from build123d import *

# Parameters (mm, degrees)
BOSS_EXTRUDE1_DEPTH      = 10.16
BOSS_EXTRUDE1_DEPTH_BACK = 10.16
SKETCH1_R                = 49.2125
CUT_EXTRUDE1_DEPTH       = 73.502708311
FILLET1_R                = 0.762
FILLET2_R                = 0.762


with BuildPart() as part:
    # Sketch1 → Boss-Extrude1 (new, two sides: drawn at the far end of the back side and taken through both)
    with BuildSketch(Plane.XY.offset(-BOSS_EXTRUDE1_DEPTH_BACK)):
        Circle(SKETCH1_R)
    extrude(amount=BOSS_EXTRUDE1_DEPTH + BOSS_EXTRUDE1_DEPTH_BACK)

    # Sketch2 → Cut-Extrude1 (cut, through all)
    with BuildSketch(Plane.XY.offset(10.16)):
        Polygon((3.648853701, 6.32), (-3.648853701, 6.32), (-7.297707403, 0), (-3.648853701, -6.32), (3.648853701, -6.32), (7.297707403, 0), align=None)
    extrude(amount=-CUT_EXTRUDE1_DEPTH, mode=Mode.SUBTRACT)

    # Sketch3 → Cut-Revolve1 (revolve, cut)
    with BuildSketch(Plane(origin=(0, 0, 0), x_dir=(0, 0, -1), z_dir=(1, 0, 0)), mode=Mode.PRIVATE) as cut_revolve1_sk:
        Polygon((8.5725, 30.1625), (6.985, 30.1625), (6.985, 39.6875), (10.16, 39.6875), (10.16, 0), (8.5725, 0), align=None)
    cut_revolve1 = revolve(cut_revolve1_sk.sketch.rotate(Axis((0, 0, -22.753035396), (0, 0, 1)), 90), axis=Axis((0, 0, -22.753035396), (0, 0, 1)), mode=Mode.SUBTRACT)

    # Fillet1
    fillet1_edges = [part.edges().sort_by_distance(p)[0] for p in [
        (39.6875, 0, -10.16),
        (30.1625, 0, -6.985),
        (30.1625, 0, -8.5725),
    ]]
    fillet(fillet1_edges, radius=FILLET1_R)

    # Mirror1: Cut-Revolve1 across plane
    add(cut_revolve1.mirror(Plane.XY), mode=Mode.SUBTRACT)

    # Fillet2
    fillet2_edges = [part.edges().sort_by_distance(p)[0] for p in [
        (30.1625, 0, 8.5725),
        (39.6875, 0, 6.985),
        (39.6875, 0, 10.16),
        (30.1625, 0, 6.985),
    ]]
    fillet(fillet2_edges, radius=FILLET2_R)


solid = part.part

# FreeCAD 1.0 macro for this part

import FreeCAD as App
import Part
import Sketcher

V = App.Vector
Q = App.Units.Quantity


def edges_at(feature, points):
    """Names of the edges that pass closest to the given points."""
    edges = feature.Shape.Edges
    near = lambda p: min(range(len(edges)), key=lambda i: edges[i].distToShape(Part.Vertex(*p))[0])
    return sorted({f"Edge{near(p) + 1}" for p in points})

doc = App.newDocument("Part")
params = doc.addObject("Spreadsheet::Sheet", "Params")
for row, (alias, value) in enumerate([
    ("sketch1_diameter", "3.875 in"),
    ("pad1_length", "0.4 in"),
    ("pad1_length2", "0.4 in"),
    ("sketch3_width", "1.1875 in"),
    ("sketch3_width2", "1.5625 in"),
    ("sketch3_height", "0.0625 in"),
    ("groove_angle", "360 deg"),
    ("fillet_radius", "0.03 in"),
    ("fillet2_radius", "0.03 in"),
], start=1):
    params.set(f"A{row}", alias)
    params.set(f"B{row}", "=" + value)
    params.setAlias(f"B{row}", alias)

body = doc.addObject("PartDesign::Body", "Body")

sketch1 = body.newObject("Sketcher::SketchObject", "Sketch")
sketch1.AttachmentSupport = (doc.getObject("XY_Plane"), [""])
sketch1.MapMode = "FlatFace"
sketch1.addGeometry(Part.Circle(V(0, 0, 0), V(0, 0, 1), 49), False)
sketch1.addConstraint([
    Sketcher.Constraint("Coincident", 0, 3, -1, 1),
    Sketcher.Constraint("Diameter", 0, Q("3.875 in")),
])
sketch1.setExpression("Constraints[1]", "Params.sketch1_diameter")
pad1 = body.newObject("PartDesign::Pad", "Pad")
pad1.Profile = sketch1
pad1.Type = "TwoLengths"
pad1.setExpression("Length", "Params.pad1_length")
pad1.setExpression("Length2", "Params.pad1_length2")

sketch2 = body.newObject("Sketcher::SketchObject", "Sketch001")
sketch2.AttachmentSupport = (doc.getObject("XY_Plane"), [""])
sketch2.MapMode = "FlatFace"
sketch2.AttachmentOffset = App.Placement(V(0, 0, 0.4 * 25.4), App.Rotation())
sketch2.addGeometry([
    Part.LineSegment(V(4, 6, 0), V(-4, 6, 0)),
    Part.LineSegment(V(-4, 6, 0), V(-7, 0, 0)),
    Part.LineSegment(V(-7, 0, 0), V(-4, -6, 0)),
    Part.LineSegment(V(-4, -6, 0), V(4, -6, 0)),
    Part.LineSegment(V(4, -6, 0), V(7, 0, 0)),
    Part.LineSegment(V(7, 0, 0), V(4, 6, 0)),
], False)
sketch2.addConstraint([
    Sketcher.Constraint("Coincident", 0, 2, 1, 1),
    Sketcher.Constraint("Coincident", 1, 2, 2, 1),
    Sketcher.Constraint("Coincident", 2, 2, 3, 1),
    Sketcher.Constraint("Coincident", 3, 2, 4, 1),
    Sketcher.Constraint("Coincident", 4, 2, 5, 1),
    Sketcher.Constraint("Coincident", 5, 2, 0, 1),
    Sketcher.Constraint("Horizontal", 0),
    Sketcher.Constraint("Horizontal", 3),
    Sketcher.Constraint("Symmetric", 0, 2, 3, 2, -1, 1),
    Sketcher.Constraint("Symmetric", 1, 2, 4, 2, -1, 1),
    Sketcher.Constraint("PointOnObject", 1, 2, -1),
    Sketcher.Constraint("Parallel", 2, 5),
    Sketcher.Constraint("Vertical", 0, 2, 2, 2),
    Sketcher.Constraint("Angle", 1, Q("-120 deg")),
    Sketcher.Constraint("DistanceY", -1, 1, 0, 2, Q("6.32 mm")),
    Sketcher.Constraint("DistanceX", 0, 2, 0, 1, Q("7.297707 mm")),
])
pocket1 = body.newObject("PartDesign::Pocket", "Pocket")
pocket1.Profile = sketch2
pocket1.Type = "ThroughAll"

sketch3 = body.newObject("Sketcher::SketchObject", "Sketch002")
sketch3.AttachmentSupport = (doc.getObject("YZ_Plane"), [""])
sketch3.MapMode = "FlatFace"
sketch3.addGeometry([
    Part.LineSegment(V(30.2, -7, 0), V(30.2, -8.6, 0)),
    Part.LineSegment(V(30.2, -8.6, 0), V(0, -8.6, 0)),
    Part.LineSegment(V(0, -8.6, 0), V(0, -10.2, 0)),
    Part.LineSegment(V(0, -10.2, 0), V(39.7, -10.2, 0)),
    Part.LineSegment(V(39.7, -10.2, 0), V(39.7, -7, 0)),
    Part.LineSegment(V(39.7, -7, 0), V(30.2, -7, 0)),
], False)
sketch3.addConstraint([
    Sketcher.Constraint("Coincident", 0, 2, 1, 1),
    Sketcher.Constraint("Coincident", 1, 2, 2, 1),
    Sketcher.Constraint("Coincident", 2, 2, 3, 1),
    Sketcher.Constraint("Coincident", 3, 2, 4, 1),
    Sketcher.Constraint("Coincident", 4, 2, 5, 1),
    Sketcher.Constraint("Coincident", 5, 2, 0, 1),
    Sketcher.Constraint("Vertical", 0),
    Sketcher.Constraint("Horizontal", 1),
    Sketcher.Constraint("Vertical", 2),
    Sketcher.Constraint("Horizontal", 3),
    Sketcher.Constraint("Vertical", 4),
    Sketcher.Constraint("Horizontal", 5),
    Sketcher.Constraint("PointOnObject", 1, 2, -2),
    Sketcher.Constraint("Equal", 0, 2),
    Sketcher.Constraint("DistanceY", 2, 2, -1, 1, Q("0.4 in")),
    Sketcher.Constraint("DistanceX", 1, 2, 1, 1, Q("1.1875 in")),
    Sketcher.Constraint("DistanceX", 3, 1, 3, 2, Q("1.5625 in")),
    Sketcher.Constraint("DistanceY", 0, 2, 0, 1, Q("0.0625 in")),
])
sketch3.setExpression("Constraints[15]", "Params.sketch3_width")
sketch3.setExpression("Constraints[16]", "Params.sketch3_width2")
sketch3.setExpression("Constraints[17]", "Params.sketch3_height")
groove = body.newObject("PartDesign::Groove", "Groove")
groove.Profile = sketch3
groove.ReferenceAxis = (sketch3, ["V_Axis"])
groove.setExpression("Angle", "Params.groove_angle")
doc.recompute()

fillet = body.newObject("PartDesign::Fillet", "Fillet")
fillet.Base = (groove, edges_at(groove, [(39.688, 0, -10.16), (30.163, 0, -6.985), (30.163, 0, -8.572)]))
fillet.setExpression("Radius", "Params.fillet_radius")
doc.recompute()

mirrored = body.newObject("PartDesign::Mirrored", "Mirrored")
mirrored.Originals = [groove]
mirrored.MirrorPlane = (doc.getObject("XY_Plane"), [""])
body.Tip = mirrored
doc.recompute()

fillet2 = body.newObject("PartDesign::Fillet", "Fillet001")
fillet2.Base = (mirrored, edges_at(mirrored, [
    (30.163, 0, 8.572),
    (39.688, 0, 6.985),
    (39.688, 0, 10.16),
    (30.163, 0, 6.985),
]))
fillet2.setExpression("Radius", "Params.fillet2_radius")

doc.recompute()
